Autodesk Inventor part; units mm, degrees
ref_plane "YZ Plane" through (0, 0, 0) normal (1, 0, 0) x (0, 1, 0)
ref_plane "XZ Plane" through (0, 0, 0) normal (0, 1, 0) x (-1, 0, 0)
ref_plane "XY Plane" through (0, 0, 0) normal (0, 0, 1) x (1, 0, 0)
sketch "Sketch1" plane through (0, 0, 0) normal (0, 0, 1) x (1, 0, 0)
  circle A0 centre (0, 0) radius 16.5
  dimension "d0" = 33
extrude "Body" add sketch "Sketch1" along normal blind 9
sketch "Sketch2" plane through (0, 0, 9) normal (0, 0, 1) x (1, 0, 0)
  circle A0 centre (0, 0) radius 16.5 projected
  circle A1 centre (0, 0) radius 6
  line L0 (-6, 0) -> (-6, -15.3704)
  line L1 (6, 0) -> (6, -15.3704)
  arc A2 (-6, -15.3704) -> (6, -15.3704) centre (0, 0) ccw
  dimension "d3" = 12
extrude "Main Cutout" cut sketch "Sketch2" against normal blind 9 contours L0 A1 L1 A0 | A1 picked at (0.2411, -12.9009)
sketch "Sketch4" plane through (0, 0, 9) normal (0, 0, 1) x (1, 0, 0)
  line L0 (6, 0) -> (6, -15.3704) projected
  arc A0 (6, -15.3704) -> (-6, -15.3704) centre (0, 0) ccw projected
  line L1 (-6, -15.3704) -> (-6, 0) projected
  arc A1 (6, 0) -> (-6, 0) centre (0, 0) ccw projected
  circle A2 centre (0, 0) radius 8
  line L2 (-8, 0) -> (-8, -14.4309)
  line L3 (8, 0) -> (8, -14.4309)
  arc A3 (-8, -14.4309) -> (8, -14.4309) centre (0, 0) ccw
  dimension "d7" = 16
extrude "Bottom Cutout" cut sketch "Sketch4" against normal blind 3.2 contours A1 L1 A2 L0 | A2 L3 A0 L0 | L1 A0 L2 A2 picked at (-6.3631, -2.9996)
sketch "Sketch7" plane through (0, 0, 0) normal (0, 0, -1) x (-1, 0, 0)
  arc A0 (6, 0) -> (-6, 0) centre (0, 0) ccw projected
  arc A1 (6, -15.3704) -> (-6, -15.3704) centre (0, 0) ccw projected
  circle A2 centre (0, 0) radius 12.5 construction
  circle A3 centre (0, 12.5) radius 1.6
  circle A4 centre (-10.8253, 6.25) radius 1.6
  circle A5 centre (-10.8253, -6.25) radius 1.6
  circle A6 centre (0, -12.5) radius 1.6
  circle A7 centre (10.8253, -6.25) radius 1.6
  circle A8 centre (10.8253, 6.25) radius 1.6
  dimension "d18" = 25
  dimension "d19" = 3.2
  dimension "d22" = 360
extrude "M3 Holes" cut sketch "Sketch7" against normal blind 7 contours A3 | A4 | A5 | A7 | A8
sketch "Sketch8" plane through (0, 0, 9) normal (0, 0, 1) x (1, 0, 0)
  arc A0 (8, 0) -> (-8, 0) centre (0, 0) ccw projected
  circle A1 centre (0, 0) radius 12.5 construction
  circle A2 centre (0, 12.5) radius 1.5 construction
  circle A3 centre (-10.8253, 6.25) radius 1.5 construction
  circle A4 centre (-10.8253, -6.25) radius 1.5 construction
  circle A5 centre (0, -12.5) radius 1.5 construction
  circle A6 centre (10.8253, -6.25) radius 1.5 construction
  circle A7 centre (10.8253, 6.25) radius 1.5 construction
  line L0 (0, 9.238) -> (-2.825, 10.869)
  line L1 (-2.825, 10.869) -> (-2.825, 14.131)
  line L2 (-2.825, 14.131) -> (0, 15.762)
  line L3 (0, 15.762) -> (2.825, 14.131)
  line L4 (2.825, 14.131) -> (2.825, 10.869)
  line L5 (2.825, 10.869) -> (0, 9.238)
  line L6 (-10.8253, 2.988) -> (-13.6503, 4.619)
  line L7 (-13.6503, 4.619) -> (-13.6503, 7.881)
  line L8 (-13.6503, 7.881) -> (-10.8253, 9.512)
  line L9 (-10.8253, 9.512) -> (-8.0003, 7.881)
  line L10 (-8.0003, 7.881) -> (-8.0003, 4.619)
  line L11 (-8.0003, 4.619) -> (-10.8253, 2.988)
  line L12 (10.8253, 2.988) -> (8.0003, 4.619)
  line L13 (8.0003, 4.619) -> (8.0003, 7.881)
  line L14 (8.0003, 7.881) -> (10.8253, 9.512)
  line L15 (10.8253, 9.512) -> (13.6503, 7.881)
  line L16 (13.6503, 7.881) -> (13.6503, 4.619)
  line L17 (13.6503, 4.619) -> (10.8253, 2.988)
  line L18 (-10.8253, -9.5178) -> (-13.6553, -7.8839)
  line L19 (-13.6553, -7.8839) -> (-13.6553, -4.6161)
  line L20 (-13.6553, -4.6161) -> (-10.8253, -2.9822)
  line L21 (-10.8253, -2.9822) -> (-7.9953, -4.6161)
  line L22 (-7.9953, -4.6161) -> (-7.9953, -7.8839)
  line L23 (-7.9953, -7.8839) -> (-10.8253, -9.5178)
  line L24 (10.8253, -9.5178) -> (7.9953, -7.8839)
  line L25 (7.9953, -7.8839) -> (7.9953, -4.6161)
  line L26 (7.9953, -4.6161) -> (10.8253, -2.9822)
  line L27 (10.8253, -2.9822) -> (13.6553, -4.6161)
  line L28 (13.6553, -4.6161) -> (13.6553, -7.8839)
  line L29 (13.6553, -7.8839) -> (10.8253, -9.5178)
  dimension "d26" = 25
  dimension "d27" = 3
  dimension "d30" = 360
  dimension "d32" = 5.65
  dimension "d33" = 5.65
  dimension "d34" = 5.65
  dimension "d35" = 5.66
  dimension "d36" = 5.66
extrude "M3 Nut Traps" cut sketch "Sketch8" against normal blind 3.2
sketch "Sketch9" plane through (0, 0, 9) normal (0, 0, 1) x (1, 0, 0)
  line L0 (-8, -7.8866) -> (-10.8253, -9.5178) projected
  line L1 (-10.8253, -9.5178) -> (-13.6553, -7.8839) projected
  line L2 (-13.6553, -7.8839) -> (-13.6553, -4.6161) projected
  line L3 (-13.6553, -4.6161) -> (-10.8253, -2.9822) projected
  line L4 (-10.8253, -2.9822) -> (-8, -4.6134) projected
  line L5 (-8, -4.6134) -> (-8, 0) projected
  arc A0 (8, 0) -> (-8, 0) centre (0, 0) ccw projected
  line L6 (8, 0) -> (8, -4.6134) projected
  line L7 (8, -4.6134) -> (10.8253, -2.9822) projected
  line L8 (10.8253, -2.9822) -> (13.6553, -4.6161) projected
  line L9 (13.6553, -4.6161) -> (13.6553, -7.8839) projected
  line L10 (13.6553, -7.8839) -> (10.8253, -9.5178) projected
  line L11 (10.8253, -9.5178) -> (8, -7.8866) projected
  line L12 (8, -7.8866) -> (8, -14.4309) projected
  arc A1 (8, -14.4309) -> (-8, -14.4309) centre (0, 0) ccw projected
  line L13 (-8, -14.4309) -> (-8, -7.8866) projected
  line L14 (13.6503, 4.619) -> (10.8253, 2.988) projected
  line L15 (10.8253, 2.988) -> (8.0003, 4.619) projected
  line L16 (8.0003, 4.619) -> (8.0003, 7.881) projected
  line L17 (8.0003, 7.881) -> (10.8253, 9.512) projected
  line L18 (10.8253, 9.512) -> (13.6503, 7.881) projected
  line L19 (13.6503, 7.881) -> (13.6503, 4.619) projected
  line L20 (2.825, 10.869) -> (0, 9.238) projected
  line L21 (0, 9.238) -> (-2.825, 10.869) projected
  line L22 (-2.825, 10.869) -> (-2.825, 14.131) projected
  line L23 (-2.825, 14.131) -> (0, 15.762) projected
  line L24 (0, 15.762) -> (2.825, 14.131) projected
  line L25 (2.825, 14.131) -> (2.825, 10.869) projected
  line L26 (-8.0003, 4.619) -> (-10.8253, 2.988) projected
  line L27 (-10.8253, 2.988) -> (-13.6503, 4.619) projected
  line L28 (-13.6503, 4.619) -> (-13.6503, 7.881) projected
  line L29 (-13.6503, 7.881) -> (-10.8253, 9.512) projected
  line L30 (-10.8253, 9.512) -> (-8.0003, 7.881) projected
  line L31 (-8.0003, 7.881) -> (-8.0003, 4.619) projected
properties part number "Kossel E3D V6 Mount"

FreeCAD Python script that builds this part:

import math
import FreeCAD as App
import Part
import Sketcher
Q = App.Units.Quantity


def add_polygon(sketch, points):
    """Adds a closed chain of lines whose ends are joined by coincident constraints."""
    first, n = sketch.GeometryCount, len(points)
    for a, b in zip(points, points[1:] + points[:1]):
        sketch.addGeometry(Part.LineSegment(App.Vector(*a, 0), App.Vector(*b, 0)), False)
    for i in range(n):
        sketch.addConstraint(Sketcher.Constraint("Coincident", first + i, 2, first + (i + 1) % n, 1))

doc = App.newDocument("Part")
params = doc.addObject("Spreadsheet::Sheet", "Params")
for row, (alias, value) in enumerate([
    ("sketch1_diameter", "33 mm"),
    ("pad1_length", "9 mm"),
    ("sketch2_radius", "6 mm"),
    ("sketch2_radius2", "16.5 mm"),
    ("pocket1_length", "9 mm"),
    ("sketch3_radius", "8 mm"),
    ("sketch3_radius2", "6 mm"),
    ("sketch3_radius3", "16.5 mm"),
    ("pocket2_length", "3.2 mm"),
    ("sketch4_diameter", "3.2 mm"),
    ("pocket3_length", "7 mm"),
    ("pocket4_length", "3.2 mm"),
], start=1):
    params.set(f"A{row}", alias)
    params.set(f"B{row}", "=" + value)
    params.setAlias(f"B{row}", alias)

body = doc.addObject("PartDesign::Body", "Body")

sketch1 = body.newObject("Sketcher::SketchObject", "Sketch")
sketch1.AttachmentSupport = (doc.getObject("XY_Plane"), [""])
sketch1.MapMode = "FlatFace"
sketch1.addGeometry(Part.Circle(App.Vector(0, 0, 0), App.Vector(0, 0, 1), 16), False)
sketch1.addConstraint([
    Sketcher.Constraint("Coincident", 0, 3, -1, 1),
    Sketcher.Constraint("Diameter", 0, Q("33 mm")),
])
sketch1.setExpression("Constraints[1]", "Params.sketch1_diameter")
pad1 = body.newObject("PartDesign::Pad", "Pad")
pad1.Profile = sketch1
pad1.setExpression("Length", "Params.pad1_length")

sketch2 = body.newObject("Sketcher::SketchObject", "Sketch001")
sketch2.AttachmentSupport = (doc.getObject("XY_Plane"), [""])
sketch2.MapMode = "FlatFace"
sketch2.AttachmentOffset = App.Placement(App.Vector(0, 0, 9), App.Rotation())
sketch2.addGeometry([
    Part.LineSegment(App.Vector(-6, 0, 0), App.Vector(-6, -15, 0)),
    Part.ArcOfCircle(Part.Circle(App.Vector(0, 0, 0), App.Vector(0, 0, 1), 16), math.radians(-111), math.radians(-69)),
    Part.LineSegment(App.Vector(6, -15, 0), App.Vector(6, 0, 0)),
    Part.ArcOfCircle(Part.Circle(App.Vector(0, 0, 0), App.Vector(0, 0, 1), 6), math.radians(0), math.radians(180)),
], False)
sketch2.addConstraint([
    Sketcher.Constraint("Coincident", 0, 2, 1, 1),
    Sketcher.Constraint("Coincident", 1, 2, 2, 1),
    Sketcher.Constraint("Tangent", 2, 2, 3, 1),
    Sketcher.Constraint("Tangent", 3, 2, 0, 1),
    Sketcher.Constraint("Vertical", 0),
    Sketcher.Constraint("Vertical", 2),
    Sketcher.Constraint("Coincident", 1, 3, -1, 1),
    Sketcher.Constraint("Coincident", 3, 3, -1, 1),
    Sketcher.Constraint("Radius", 3, Q("6 mm")),
    Sketcher.Constraint("Radius", 1, Q("16.5 mm")),
])
sketch2.setExpression("Constraints[8]", "Params.sketch2_radius")
sketch2.setExpression("Constraints[9]", "Params.sketch2_radius2")
pocket1 = body.newObject("PartDesign::Pocket", "Pocket")
pocket1.Profile = sketch2
pocket1.setExpression("Length", "Params.pocket1_length")

sketch3 = body.newObject("Sketcher::SketchObject", "Sketch002")
sketch3.AttachmentSupport = (doc.getObject("XY_Plane"), [""])
sketch3.MapMode = "FlatFace"
sketch3.AttachmentOffset = App.Placement(App.Vector(0, 0, 9), App.Rotation())
sketch3.addGeometry([
    Part.ArcOfCircle(Part.Circle(App.Vector(0, 0, 0), App.Vector(0, 0, 1), 6), math.radians(0), math.radians(180)),
    Part.LineSegment(App.Vector(6, 0, 0), App.Vector(6, -15.4, 0)),
    Part.ArcOfCircle(Part.Circle(App.Vector(0, 0, 0), App.Vector(0, 0, 1), 16.5), math.radians(-68.68), math.radians(-61)),
    Part.LineSegment(App.Vector(8, -14.4, 0), App.Vector(8, 0, 0)),
    Part.ArcOfCircle(Part.Circle(App.Vector(0, 0, 0), App.Vector(0, 0, 1), 8), math.radians(0), math.radians(180)),
    Part.LineSegment(App.Vector(-8, 0, 0), App.Vector(-8, -14.4, 0)),
    Part.ArcOfCircle(Part.Circle(App.Vector(0, 0, 0), App.Vector(0, 0, 1), 16.5), math.radians(-119), math.radians(-111.32)),
    Part.LineSegment(App.Vector(-6, -15.4, 0), App.Vector(-6, 0, 0)),
], False)
sketch3.addConstraint([
    Sketcher.Constraint("Tangent", 0, 1, 1, 1),
    Sketcher.Constraint("Coincident", 1, 2, 2, 1),
    Sketcher.Constraint("Coincident", 2, 2, 3, 1),
    Sketcher.Constraint("Tangent", 3, 2, 4, 1),
    Sketcher.Constraint("Tangent", 4, 2, 5, 1),
    Sketcher.Constraint("Coincident", 5, 2, 6, 1),
    Sketcher.Constraint("Coincident", 6, 2, 7, 1),
    Sketcher.Constraint("Tangent", 7, 2, 0, 2),
    Sketcher.Constraint("Vertical", 1),
    Sketcher.Constraint("Vertical", 3),
    Sketcher.Constraint("Vertical", 5),
    Sketcher.Constraint("Vertical", 7),
    Sketcher.Constraint("Coincident", 0, 3, -1, 1),
    Sketcher.Constraint("Coincident", 2, 3, -1, 1),
    Sketcher.Constraint("Coincident", 4, 3, -1, 1),
    Sketcher.Constraint("Coincident", 6, 3, -1, 1),
    Sketcher.Constraint("Equal", 2, 6),
    Sketcher.Constraint("Radius", 4, Q("8 mm")),
    Sketcher.Constraint("Radius", 0, Q("6 mm")),
    Sketcher.Constraint("Radius", 2, Q("16.5 mm")),
])
sketch3.setExpression("Constraints[17]", "Params.sketch3_radius")
sketch3.setExpression("Constraints[18]", "Params.sketch3_radius2")
sketch3.setExpression("Constraints[19]", "Params.sketch3_radius3")
pocket2 = body.newObject("PartDesign::Pocket", "Pocket001")
pocket2.Profile = sketch3
pocket2.setExpression("Length", "Params.pocket2_length")

sketch4 = body.newObject("Sketcher::SketchObject", "Sketch003")
sketch4.AttachmentSupport = (doc.getObject("XY_Plane"), [""])
sketch4.MapMode = "FlatFace"
sketch4.addGeometry([
    Part.Circle(App.Vector(0, 12.5, 0), App.Vector(0, 0, 1), 1.6),
    Part.Circle(App.Vector(10.8, 6.2, 0), App.Vector(0, 0, 1), 1.6),
    Part.Circle(App.Vector(10.8, -6.2, 0), App.Vector(0, 0, 1), 1.6),
    Part.Circle(App.Vector(-10.8, -6.2, 0), App.Vector(0, 0, 1), 1.6),
    Part.Circle(App.Vector(-10.8, 6.2, 0), App.Vector(0, 0, 1), 1.6),
], False)
sketch4.addConstraint([
    Sketcher.Constraint("Equal", 0, 1),
    Sketcher.Constraint("Equal", 1, 2),
    Sketcher.Constraint("Equal", 2, 3),
    Sketcher.Constraint("Equal", 3, 4),
    Sketcher.Constraint("Symmetric", 1, 3, 3, 3, -1, 1),
    Sketcher.Constraint("Symmetric", 2, 3, 4, 3, -1, 1),
    Sketcher.Constraint("Symmetric", 2, 3, 3, 3, -2),
    Sketcher.Constraint("PointOnObject", 0, 3, -2),
    Sketcher.Constraint("Diameter", 0, Q("3.2 mm")),
    Sketcher.Constraint("DistanceY", -1, 1, 0, 3, Q("12.5 mm")),
    Sketcher.Constraint("DistanceY", 2, 3, 1, 3, Q("12.5 mm")),
    Sketcher.Constraint("DistanceX", -1, 1, 1, 3, Q("10.8253 mm")),
])
sketch4.setExpression("Constraints[8]", "Params.sketch4_diameter")
pocket3 = body.newObject("PartDesign::Pocket", "Pocket002")
pocket3.Profile = sketch4
pocket3.setExpression("Length", "Params.pocket3_length")
pocket3.Reversed = True

sketch5 = body.newObject("Sketcher::SketchObject", "Sketch004")
sketch5.AttachmentSupport = (doc.getObject("XY_Plane"), [""])
sketch5.MapMode = "FlatFace"
sketch5.AttachmentOffset = App.Placement(App.Vector(0, 0, 9), App.Rotation())
add_polygon(sketch5, [(-2.8, 10.9), (0, 9.2), (2.8, 10.9), (2.8, 14.1), (0, 15.8), (-2.8, 14.1)])
add_polygon(sketch5, [(-13.7, 4.6), (-10.8, 3), (-8, 4.6), (-8, 7.9), (-10.8, 9.5), (-13.7, 7.9)])
add_polygon(sketch5, [(8, 4.6), (10.8, 3), (13.7, 4.6), (13.7, 7.9), (10.8, 9.5), (8, 7.9)])
add_polygon(sketch5, [(-13.7, -7.9), (-10.8, -9.5), (-8, -7.9), (-8, -4.6), (-10.8, -3), (-13.7, -4.6)])
add_polygon(sketch5, [(8, -7.9), (10.8, -9.5), (13.7, -7.9), (13.7, -4.6), (10.8, -3), (8, -4.6)])
sketch5.addConstraint([
    Sketcher.Constraint("Vertical", 2),
    Sketcher.Constraint("Vertical", 5),
    Sketcher.Constraint("Vertical", 8),
    Sketcher.Constraint("Vertical", 11),
    Sketcher.Constraint("Vertical", 14),
    Sketcher.Constraint("Vertical", 17),
    Sketcher.Constraint("Vertical", 20),
    Sketcher.Constraint("Vertical", 23),
    Sketcher.Constraint("Vertical", 26),
    Sketcher.Constraint("Vertical", 29),
    Sketcher.Constraint("Symmetric", 2, 2, 4, 2, -2),
    Sketcher.Constraint("Symmetric", 6, 2, 12, 2, -2),
    Sketcher.Constraint("Symmetric", 11, 2, 13, 2, -2),
    Sketcher.Constraint("Symmetric", 9, 2, 15, 2, -2),
    Sketcher.Constraint("Symmetric", 8, 2, 16, 2, -2),
    Sketcher.Constraint("Symmetric", 18, 2, 24, 2, -2),
    Sketcher.Constraint("Symmetric", 23, 2, 25, 2, -2),
    Sketcher.Constraint("Symmetric", 21, 2, 27, 2, -2),
    Sketcher.Constraint("Symmetric", 20, 2, 28, 2, -2),
    Sketcher.Constraint("PointOnObject", 0, 2, -2),
    Sketcher.Constraint("PointOnObject", 3, 2, -2),
    Sketcher.Constraint("Parallel", 0, 3),
    Sketcher.Constraint("Parallel", 1, 4),
    Sketcher.Constraint("Parallel", 3, 6),
    Sketcher.Constraint("Parallel", 4, 7),
    Sketcher.Constraint("Parallel", 6, 9),
    Sketcher.Constraint("Parallel", 7, 10),
    Sketcher.Constraint("Parallel", 9, 12),
    Sketcher.Constraint("Parallel", 12, 15),
    Sketcher.Constraint("Parallel", 15, 18),
    Sketcher.Constraint("Parallel", 16, 19),
    Sketcher.Constraint("Parallel", 18, 21),
    Sketcher.Constraint("Parallel", 19, 22),
    Sketcher.Constraint("Parallel", 21, 24),
    Sketcher.Constraint("Parallel", 24, 27),
    Sketcher.Constraint("Horizontal", 8, 2, 10, 2),
    Sketcher.Constraint("Horizontal", 7, 2, 11, 2),
    Sketcher.Constraint("Horizontal", 20, 2, 22, 2),
    Sketcher.Constraint("Horizontal", 19, 2, 23, 2),
    Sketcher.Constraint("Vertical", 9, 2, 18, 2),
    Sketcher.Constraint("Equal", 5, 8),
    Sketcher.Constraint("Equal", 4, 6),
    Sketcher.Constraint("Angle", 0, Q("-29.9998 deg")),
    Sketcher.Constraint("DistanceX", 4, 2, 2, 2, Q("5.65 mm")),
    Sketcher.Constraint("DistanceX", 22, 2, 20, 2, Q("5.66 mm")),
    Sketcher.Constraint("DistanceY", 2, 1, 2, 2, Q("3.262 mm")),
    Sketcher.Constraint("DistanceY", 6, 2, 0, 2, Q("6.25 mm")),
    Sketcher.Constraint("DistanceY", 20, 1, 20, 2, Q("3.2678 mm")),
    Sketcher.Constraint("DistanceY", -1, 1, 0, 2, Q("9.238 mm")),
    Sketcher.Constraint("DistanceY", 19, 2, -1, 1, Q("7.884 mm")),
    Sketcher.Constraint("DistanceX", 6, 2, -1, 1, Q("10.8253 mm")),
])
pocket4 = body.newObject("PartDesign::Pocket", "Pocket003")
pocket4.Profile = sketch5
pocket4.setExpression("Length", "Params.pocket4_length")

doc.recompute()
